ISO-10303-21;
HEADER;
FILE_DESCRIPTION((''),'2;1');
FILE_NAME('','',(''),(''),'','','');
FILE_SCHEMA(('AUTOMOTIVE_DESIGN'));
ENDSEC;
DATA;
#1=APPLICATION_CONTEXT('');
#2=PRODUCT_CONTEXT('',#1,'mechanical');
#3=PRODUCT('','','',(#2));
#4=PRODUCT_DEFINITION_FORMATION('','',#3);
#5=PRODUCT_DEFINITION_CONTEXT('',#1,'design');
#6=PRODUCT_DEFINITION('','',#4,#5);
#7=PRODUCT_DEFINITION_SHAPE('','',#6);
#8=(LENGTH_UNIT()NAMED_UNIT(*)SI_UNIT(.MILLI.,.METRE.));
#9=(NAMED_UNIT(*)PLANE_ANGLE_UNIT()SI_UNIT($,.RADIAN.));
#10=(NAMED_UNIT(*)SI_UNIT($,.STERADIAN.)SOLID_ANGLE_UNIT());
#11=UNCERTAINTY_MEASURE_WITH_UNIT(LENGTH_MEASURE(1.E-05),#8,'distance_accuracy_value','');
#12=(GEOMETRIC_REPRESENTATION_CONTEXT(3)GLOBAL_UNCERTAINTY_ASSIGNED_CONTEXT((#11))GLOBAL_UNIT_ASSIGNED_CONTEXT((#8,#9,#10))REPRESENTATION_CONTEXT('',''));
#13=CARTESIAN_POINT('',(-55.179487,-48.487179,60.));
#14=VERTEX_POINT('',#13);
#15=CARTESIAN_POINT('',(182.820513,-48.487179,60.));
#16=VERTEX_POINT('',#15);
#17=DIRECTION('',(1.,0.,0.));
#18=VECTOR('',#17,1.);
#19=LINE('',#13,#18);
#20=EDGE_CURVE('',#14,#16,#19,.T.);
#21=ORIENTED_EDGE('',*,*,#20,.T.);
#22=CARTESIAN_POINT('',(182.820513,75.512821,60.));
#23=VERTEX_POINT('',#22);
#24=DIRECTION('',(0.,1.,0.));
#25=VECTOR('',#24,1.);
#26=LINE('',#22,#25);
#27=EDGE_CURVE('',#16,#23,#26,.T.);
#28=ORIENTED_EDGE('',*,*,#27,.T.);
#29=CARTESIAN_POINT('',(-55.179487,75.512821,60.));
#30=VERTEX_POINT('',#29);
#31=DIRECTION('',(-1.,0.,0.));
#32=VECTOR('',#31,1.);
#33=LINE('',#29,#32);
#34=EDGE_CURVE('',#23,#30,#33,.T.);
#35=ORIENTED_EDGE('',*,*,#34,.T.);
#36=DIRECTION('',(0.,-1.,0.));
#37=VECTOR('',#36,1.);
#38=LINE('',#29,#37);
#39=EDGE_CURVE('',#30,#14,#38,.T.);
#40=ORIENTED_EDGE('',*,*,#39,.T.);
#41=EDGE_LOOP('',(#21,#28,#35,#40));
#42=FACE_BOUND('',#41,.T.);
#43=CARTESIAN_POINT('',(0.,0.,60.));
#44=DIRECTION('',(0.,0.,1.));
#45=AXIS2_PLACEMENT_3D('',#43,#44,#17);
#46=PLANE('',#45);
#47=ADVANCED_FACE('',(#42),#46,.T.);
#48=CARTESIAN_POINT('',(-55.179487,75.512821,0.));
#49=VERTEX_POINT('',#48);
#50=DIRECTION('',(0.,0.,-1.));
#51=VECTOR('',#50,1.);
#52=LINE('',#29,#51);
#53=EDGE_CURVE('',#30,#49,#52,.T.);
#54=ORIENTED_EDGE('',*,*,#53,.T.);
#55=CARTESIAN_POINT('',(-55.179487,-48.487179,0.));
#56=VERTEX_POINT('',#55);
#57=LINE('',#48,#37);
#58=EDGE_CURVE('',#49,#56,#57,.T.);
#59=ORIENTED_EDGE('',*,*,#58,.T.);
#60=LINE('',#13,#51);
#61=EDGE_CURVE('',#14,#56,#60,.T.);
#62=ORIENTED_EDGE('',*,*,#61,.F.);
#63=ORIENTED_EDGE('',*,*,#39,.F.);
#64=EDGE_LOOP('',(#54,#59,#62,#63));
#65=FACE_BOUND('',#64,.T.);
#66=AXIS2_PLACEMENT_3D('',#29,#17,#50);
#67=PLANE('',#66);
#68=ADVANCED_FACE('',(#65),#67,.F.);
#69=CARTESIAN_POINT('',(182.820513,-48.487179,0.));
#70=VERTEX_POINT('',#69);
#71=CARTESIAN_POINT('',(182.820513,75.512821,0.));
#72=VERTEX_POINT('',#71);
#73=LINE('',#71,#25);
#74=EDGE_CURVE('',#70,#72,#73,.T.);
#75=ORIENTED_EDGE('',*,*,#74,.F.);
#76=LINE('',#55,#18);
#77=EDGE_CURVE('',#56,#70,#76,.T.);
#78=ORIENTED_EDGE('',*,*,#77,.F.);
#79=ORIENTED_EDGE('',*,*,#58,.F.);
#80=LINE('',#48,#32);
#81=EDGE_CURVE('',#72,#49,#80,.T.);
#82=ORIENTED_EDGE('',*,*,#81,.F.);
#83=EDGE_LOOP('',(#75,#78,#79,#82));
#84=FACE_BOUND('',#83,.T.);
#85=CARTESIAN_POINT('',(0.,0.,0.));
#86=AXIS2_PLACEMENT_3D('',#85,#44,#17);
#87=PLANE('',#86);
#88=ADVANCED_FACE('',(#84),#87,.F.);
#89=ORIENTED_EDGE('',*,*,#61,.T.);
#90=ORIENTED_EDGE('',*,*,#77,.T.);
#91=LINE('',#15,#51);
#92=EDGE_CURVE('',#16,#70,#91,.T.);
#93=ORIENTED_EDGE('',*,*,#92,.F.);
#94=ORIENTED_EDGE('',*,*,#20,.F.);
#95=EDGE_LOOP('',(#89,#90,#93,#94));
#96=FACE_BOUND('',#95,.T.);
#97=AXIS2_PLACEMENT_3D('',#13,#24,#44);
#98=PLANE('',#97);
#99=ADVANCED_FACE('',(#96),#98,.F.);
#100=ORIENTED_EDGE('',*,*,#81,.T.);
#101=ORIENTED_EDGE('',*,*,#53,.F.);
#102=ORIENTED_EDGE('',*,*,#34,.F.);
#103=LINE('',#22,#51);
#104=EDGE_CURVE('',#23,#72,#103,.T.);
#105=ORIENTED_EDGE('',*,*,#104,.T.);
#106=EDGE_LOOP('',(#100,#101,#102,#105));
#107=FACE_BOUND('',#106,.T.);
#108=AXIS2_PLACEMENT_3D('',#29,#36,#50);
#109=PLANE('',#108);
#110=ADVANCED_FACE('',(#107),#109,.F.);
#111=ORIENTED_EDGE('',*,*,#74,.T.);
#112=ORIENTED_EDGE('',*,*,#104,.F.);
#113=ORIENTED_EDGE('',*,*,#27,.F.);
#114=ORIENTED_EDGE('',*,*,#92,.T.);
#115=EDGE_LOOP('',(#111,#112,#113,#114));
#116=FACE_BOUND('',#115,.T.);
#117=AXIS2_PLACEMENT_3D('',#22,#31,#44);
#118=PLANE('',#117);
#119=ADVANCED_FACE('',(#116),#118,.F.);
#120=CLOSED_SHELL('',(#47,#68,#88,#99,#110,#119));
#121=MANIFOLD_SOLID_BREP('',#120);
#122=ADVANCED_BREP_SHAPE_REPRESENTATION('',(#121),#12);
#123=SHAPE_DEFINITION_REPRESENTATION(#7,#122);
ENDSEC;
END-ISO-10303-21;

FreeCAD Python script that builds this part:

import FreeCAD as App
import Part
import Sketcher
Q = App.Units.Quantity

doc = App.newDocument("Part")
params = doc.addObject("Spreadsheet::Sheet", "Params")
for row, (alias, value) in enumerate([
    ("sketch1_width", "238 mm"),
    ("sketch1_height", "124 mm"),
    ("pad1_length", "60 mm"),
], start=1):
    params.set(f"A{row}", alias)
    params.set(f"B{row}", "=" + value)
    params.setAlias(f"B{row}", alias)

body = doc.addObject("PartDesign::Body", "Body")

# Sketch on XY plane
sketch1 = body.newObject("Sketcher::SketchObject", "Sketch")
sketch1.AttachmentSupport = (doc.getObject("XY_Plane"), [""])
sketch1.MapMode = "FlatFace"
sketch1.addGeometry([
    Part.LineSegment(App.Vector(-55.179487, 75.512821, 0), App.Vector(-55.179487, -48.487179, 0)),
    Part.LineSegment(App.Vector(-55.179487, -48.487179, 0), App.Vector(182.820513, -48.487179, 0)),
    Part.LineSegment(App.Vector(182.820513, -48.487179, 0), App.Vector(182.820513, 75.512821, 0)),
    Part.LineSegment(App.Vector(182.820513, 75.512821, 0), App.Vector(-55.179487, 75.512821, 0)),
], False)
sketch1.addConstraint([
    Sketcher.Constraint("Coincident", 0, 2, 1, 1),
    Sketcher.Constraint("Coincident", 1, 2, 2, 1),
    Sketcher.Constraint("Coincident", 2, 2, 3, 1),
    Sketcher.Constraint("Coincident", 3, 2, 0, 1),
    Sketcher.Constraint("Vertical", 0),
    Sketcher.Constraint("Horizontal", 1),
    Sketcher.Constraint("Vertical", 2),
    Sketcher.Constraint("Horizontal", 3),
    Sketcher.Constraint("DistanceX", 1, 1, 1, 2, Q("238 mm")),
    Sketcher.Constraint("DistanceY", 0, 2, 0, 1, Q("124 mm")),
    Sketcher.Constraint("DistanceY", 0, 2, -1, 1, Q("48.487179 mm")),
    Sketcher.Constraint("DistanceX", 0, 2, -1, 1, Q("55.179487 mm")),
])
sketch1.setExpression("Constraints[8]", "Params.sketch1_width")
sketch1.setExpression("Constraints[9]", "Params.sketch1_height")
pad1 = body.newObject("PartDesign::Pad", "Pad")
pad1.Profile = sketch1
pad1.setExpression("Length", "Params.pad1_length")

doc.recompute()
